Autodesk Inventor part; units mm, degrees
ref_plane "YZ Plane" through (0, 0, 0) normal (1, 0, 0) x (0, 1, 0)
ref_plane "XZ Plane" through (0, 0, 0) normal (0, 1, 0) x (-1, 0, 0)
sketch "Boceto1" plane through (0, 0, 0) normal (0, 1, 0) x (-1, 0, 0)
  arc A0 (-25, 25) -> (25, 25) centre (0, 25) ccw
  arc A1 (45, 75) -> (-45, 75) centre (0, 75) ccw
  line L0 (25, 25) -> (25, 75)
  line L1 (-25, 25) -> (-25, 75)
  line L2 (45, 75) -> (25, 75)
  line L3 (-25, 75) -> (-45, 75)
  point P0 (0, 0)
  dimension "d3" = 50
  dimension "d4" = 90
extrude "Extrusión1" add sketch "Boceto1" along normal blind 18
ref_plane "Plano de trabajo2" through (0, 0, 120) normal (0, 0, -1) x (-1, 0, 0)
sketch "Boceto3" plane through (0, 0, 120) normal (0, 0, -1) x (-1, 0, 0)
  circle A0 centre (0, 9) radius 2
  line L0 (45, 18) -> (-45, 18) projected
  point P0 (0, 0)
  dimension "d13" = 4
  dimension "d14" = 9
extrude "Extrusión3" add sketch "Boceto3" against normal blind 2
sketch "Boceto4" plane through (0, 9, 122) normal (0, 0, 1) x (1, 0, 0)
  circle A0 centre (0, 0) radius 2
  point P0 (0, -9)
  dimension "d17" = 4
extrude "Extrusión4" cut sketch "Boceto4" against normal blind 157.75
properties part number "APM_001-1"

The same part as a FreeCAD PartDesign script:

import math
import FreeCAD as App
import Part
import Sketcher

V = App.Vector

doc = App.newDocument("Part")
params = doc.addObject("Spreadsheet::Sheet", "Params")
for row, (alias, value) in enumerate([
    ("sketch1_radius", "25 mm"),
    ("sketch1_radius2", "45 mm"),
    ("sketch1_height", "50 mm"),
    ("pad1_length", "18 mm"),
    ("sketch2_diameter", "4 mm"),
    ("pad2_length", "2 mm"),
    ("sketch3_diameter", "4 mm"),
    ("pocket1_length", "157.75 mm"),
], start=1):
    params.set(f"A{row}", alias)
    params.set(f"B{row}", "=" + value)
    params.setAlias(f"B{row}", alias)

body = doc.addObject("PartDesign::Body", "Body")
body.AllowCompound = True

# Sketch on XZ plane
sketch1 = body.newObject("Sketcher::SketchObject", "Sketch")
sketch1.AttachmentSupport = (doc.getObject("XZ_Plane"), [""])
sketch1.MapMode = "FlatFace"
sketch1.addGeometry(Part.LineSegment(V(25, 75, 0), V(25, 25, 0)), False)
sketch1.addGeometry(Part.ArcOfCircle(Part.Circle(V(0, 25, 0), V(0, 0, 1), 25), math.radians(180), math.radians(360)), False)
sketch1.addGeometry(Part.LineSegment(V(-25, 25, 0), V(-25, 75, 0)), False)
sketch1.addGeometry(Part.LineSegment(V(-25, 75, 0), V(-45, 75, 0)), False)
sketch1.addGeometry(Part.ArcOfCircle(Part.Circle(V(0, 75, 0), V(0, 0, 1), 45), math.radians(0), math.radians(180)), False)
sketch1.addGeometry(Part.LineSegment(V(45, 75, 0), V(25, 75, 0)), False)
sketch1.addConstraint(Sketcher.Constraint("Tangent", 0, 2, 1, 2))
sketch1.addConstraint(Sketcher.Constraint("Tangent", 1, 1, 2, 1))
sketch1.addConstraint(Sketcher.Constraint("Coincident", 2, 2, 3, 1))
sketch1.addConstraint(Sketcher.Constraint("Coincident", 3, 2, 4, 2))
sketch1.addConstraint(Sketcher.Constraint("Coincident", 4, 1, 5, 1))
sketch1.addConstraint(Sketcher.Constraint("Coincident", 5, 2, 0, 1))
sketch1.addConstraint(Sketcher.Constraint("Vertical", 0))
sketch1.addConstraint(Sketcher.Constraint("Vertical", 2))
sketch1.addConstraint(Sketcher.Constraint("Horizontal", 3))
sketch1.addConstraint(Sketcher.Constraint("Horizontal", 5))
sketch1.addConstraint(Sketcher.Constraint("Symmetric", 3, 2, 4, 1, -2))
sketch1.addConstraint(Sketcher.Constraint("PointOnObject", 1, 3, -2))
sketch1.addConstraint(Sketcher.Constraint("Horizontal", 4, 3, 2, 2))
sketch1.addConstraint(Sketcher.Constraint("Radius", 1, 25.0))
sketch1.addConstraint(Sketcher.Constraint("Radius", 4, 45.0))
sketch1.addConstraint(Sketcher.Constraint("DistanceY", 0, 2, 0, 1, 50.0))
sketch1.addConstraint(Sketcher.Constraint("DistanceY", -1, 1, 1, 3, 25.0))
sketch1.setExpression("Constraints[13]", "Params.sketch1_radius")
sketch1.setExpression("Constraints[14]", "Params.sketch1_radius2")
sketch1.setExpression("Constraints[15]", "Params.sketch1_height")
pad1 = body.newObject("PartDesign::Pad", "Pad")
pad1.Profile = sketch1
pad1.setExpression("Length", "Params.pad1_length")
pad1.Reversed = True

# Sketch on XY plane
sketch2 = body.newObject("Sketcher::SketchObject", "Sketch001")
sketch2.AttachmentSupport = (doc.getObject("XY_Plane"), [""])
sketch2.MapMode = "FlatFace"
sketch2.AttachmentOffset = App.Placement(V(0, 0, 120), App.Rotation())
sketch2.addGeometry(Part.Circle(V(0, 9, 0), V(0, 0, 1), 2), False)
sketch2.addConstraint(Sketcher.Constraint("PointOnObject", 0, 3, -2))
sketch2.addConstraint(Sketcher.Constraint("Diameter", 0, 4.0))
sketch2.addConstraint(Sketcher.Constraint("DistanceY", -1, 1, 0, 3, 9.0))
sketch2.setExpression("Constraints[1]", "Params.sketch2_diameter")
pad2 = body.newObject("PartDesign::Pad", "Pad001")
pad2.Profile = sketch2
pad2.setExpression("Length", "Params.pad2_length")

# Sketch on XY plane
sketch3 = body.newObject("Sketcher::SketchObject", "Sketch002")
sketch3.AttachmentSupport = (doc.getObject("XY_Plane"), [""])
sketch3.MapMode = "FlatFace"
sketch3.AttachmentOffset = App.Placement(V(0, 0, 122), App.Rotation())
sketch3.addGeometry(Part.Circle(V(0, 9, 0), V(0, 0, 1), 2), False)
sketch3.addConstraint(Sketcher.Constraint("PointOnObject", 0, 3, -2))
sketch3.addConstraint(Sketcher.Constraint("Diameter", 0, 4.0))
sketch3.addConstraint(Sketcher.Constraint("DistanceY", -1, 1, 0, 3, 9.0))
sketch3.setExpression("Constraints[1]", "Params.sketch3_diameter")
pocket1 = body.newObject("PartDesign::Pocket", "Pocket")
pocket1.Profile = sketch3
pocket1.setExpression("Length", "Params.pocket1_length")

doc.recompute()
